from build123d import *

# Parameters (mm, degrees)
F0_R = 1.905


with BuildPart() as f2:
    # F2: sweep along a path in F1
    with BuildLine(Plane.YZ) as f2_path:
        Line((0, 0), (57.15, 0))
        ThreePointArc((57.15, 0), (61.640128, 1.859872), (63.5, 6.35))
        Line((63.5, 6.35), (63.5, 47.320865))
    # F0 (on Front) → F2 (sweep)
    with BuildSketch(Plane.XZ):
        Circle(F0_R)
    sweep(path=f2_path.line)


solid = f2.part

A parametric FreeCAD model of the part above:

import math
import FreeCAD as App
import Part
import Sketcher

V = App.Vector
Q = App.Units.Quantity

doc = App.newDocument("Part")
params = doc.addObject("Spreadsheet::Sheet", "Params")
for row, (alias, value) in enumerate([
    ("sketch1_diameter", "0.15 in"),
    ("sketch2_radius", "0.25 in"),
    ("sketch2_width", "2.25 in"),
], start=1):
    params.set(f"A{row}", alias)
    params.set(f"B{row}", "=" + value)
    params.setAlias(f"B{row}", alias)

body = doc.addObject("PartDesign::Body", "Body")

# Sketch on XZ plane
sketch1 = body.newObject("Sketcher::SketchObject", "Sketch")
sketch1.AttachmentSupport = (doc.getObject("XZ_Plane"), [""])
sketch1.MapMode = "FlatFace"
sketch1.addGeometry(Part.Circle(V(0, 0, 0), V(0, 0, 1), 1.9), False)
sketch1.addConstraint(Sketcher.Constraint("Coincident", 0, 3, -1, 1))
sketch1.addConstraint(Sketcher.Constraint("Diameter", 0, Q("0.15 in")))
sketch1.setExpression("Constraints[1]", "Params.sketch1_diameter")

# Sketch on YZ plane
sketch2 = body.newObject("Sketcher::SketchObject", "Sketch001")
sketch2.AttachmentSupport = (doc.getObject("YZ_Plane"), [""])
sketch2.MapMode = "FlatFace"
sketch2.addGeometry(Part.LineSegment(V(0, 0, 0), V(57, 0, 0)), False)
sketch2.addGeometry(Part.ArcOfCircle(Part.Circle(V(57, 6, 0), V(0, 0, 1), 6), math.radians(-90), math.radians(0)), False)
sketch2.addGeometry(Part.LineSegment(V(64, 6, 0), V(64, 47, 0)), False)
sketch2.addConstraint(Sketcher.Constraint("Tangent", 0, 2, 1, 1))
sketch2.addConstraint(Sketcher.Constraint("Tangent", 1, 2, 2, 1))
sketch2.addConstraint(Sketcher.Constraint("Horizontal", 0))
sketch2.addConstraint(Sketcher.Constraint("Vertical", 2))
sketch2.addConstraint(Sketcher.Constraint("Coincident", 0, 1, -1, 1))
sketch2.addConstraint(Sketcher.Constraint("Radius", 1, Q("0.25 in")))
sketch2.addConstraint(Sketcher.Constraint("DistanceX", 0, 1, 0, 2, Q("2.25 in")))
sketch2.addConstraint(Sketcher.Constraint("DistanceY", 2, 1, 2, 2, 40.970865))
sketch2.setExpression("Constraints[5]", "Params.sketch2_radius")
sketch2.setExpression("Constraints[6]", "Params.sketch2_width")
doc.recompute()

additivepipe = body.newObject("PartDesign::AdditivePipe", "AdditivePipe")
additivepipe.Profile = sketch1
additivepipe.Spine = (sketch2, ["Edge1", "Edge2", "Edge3"])

doc.recompute()
